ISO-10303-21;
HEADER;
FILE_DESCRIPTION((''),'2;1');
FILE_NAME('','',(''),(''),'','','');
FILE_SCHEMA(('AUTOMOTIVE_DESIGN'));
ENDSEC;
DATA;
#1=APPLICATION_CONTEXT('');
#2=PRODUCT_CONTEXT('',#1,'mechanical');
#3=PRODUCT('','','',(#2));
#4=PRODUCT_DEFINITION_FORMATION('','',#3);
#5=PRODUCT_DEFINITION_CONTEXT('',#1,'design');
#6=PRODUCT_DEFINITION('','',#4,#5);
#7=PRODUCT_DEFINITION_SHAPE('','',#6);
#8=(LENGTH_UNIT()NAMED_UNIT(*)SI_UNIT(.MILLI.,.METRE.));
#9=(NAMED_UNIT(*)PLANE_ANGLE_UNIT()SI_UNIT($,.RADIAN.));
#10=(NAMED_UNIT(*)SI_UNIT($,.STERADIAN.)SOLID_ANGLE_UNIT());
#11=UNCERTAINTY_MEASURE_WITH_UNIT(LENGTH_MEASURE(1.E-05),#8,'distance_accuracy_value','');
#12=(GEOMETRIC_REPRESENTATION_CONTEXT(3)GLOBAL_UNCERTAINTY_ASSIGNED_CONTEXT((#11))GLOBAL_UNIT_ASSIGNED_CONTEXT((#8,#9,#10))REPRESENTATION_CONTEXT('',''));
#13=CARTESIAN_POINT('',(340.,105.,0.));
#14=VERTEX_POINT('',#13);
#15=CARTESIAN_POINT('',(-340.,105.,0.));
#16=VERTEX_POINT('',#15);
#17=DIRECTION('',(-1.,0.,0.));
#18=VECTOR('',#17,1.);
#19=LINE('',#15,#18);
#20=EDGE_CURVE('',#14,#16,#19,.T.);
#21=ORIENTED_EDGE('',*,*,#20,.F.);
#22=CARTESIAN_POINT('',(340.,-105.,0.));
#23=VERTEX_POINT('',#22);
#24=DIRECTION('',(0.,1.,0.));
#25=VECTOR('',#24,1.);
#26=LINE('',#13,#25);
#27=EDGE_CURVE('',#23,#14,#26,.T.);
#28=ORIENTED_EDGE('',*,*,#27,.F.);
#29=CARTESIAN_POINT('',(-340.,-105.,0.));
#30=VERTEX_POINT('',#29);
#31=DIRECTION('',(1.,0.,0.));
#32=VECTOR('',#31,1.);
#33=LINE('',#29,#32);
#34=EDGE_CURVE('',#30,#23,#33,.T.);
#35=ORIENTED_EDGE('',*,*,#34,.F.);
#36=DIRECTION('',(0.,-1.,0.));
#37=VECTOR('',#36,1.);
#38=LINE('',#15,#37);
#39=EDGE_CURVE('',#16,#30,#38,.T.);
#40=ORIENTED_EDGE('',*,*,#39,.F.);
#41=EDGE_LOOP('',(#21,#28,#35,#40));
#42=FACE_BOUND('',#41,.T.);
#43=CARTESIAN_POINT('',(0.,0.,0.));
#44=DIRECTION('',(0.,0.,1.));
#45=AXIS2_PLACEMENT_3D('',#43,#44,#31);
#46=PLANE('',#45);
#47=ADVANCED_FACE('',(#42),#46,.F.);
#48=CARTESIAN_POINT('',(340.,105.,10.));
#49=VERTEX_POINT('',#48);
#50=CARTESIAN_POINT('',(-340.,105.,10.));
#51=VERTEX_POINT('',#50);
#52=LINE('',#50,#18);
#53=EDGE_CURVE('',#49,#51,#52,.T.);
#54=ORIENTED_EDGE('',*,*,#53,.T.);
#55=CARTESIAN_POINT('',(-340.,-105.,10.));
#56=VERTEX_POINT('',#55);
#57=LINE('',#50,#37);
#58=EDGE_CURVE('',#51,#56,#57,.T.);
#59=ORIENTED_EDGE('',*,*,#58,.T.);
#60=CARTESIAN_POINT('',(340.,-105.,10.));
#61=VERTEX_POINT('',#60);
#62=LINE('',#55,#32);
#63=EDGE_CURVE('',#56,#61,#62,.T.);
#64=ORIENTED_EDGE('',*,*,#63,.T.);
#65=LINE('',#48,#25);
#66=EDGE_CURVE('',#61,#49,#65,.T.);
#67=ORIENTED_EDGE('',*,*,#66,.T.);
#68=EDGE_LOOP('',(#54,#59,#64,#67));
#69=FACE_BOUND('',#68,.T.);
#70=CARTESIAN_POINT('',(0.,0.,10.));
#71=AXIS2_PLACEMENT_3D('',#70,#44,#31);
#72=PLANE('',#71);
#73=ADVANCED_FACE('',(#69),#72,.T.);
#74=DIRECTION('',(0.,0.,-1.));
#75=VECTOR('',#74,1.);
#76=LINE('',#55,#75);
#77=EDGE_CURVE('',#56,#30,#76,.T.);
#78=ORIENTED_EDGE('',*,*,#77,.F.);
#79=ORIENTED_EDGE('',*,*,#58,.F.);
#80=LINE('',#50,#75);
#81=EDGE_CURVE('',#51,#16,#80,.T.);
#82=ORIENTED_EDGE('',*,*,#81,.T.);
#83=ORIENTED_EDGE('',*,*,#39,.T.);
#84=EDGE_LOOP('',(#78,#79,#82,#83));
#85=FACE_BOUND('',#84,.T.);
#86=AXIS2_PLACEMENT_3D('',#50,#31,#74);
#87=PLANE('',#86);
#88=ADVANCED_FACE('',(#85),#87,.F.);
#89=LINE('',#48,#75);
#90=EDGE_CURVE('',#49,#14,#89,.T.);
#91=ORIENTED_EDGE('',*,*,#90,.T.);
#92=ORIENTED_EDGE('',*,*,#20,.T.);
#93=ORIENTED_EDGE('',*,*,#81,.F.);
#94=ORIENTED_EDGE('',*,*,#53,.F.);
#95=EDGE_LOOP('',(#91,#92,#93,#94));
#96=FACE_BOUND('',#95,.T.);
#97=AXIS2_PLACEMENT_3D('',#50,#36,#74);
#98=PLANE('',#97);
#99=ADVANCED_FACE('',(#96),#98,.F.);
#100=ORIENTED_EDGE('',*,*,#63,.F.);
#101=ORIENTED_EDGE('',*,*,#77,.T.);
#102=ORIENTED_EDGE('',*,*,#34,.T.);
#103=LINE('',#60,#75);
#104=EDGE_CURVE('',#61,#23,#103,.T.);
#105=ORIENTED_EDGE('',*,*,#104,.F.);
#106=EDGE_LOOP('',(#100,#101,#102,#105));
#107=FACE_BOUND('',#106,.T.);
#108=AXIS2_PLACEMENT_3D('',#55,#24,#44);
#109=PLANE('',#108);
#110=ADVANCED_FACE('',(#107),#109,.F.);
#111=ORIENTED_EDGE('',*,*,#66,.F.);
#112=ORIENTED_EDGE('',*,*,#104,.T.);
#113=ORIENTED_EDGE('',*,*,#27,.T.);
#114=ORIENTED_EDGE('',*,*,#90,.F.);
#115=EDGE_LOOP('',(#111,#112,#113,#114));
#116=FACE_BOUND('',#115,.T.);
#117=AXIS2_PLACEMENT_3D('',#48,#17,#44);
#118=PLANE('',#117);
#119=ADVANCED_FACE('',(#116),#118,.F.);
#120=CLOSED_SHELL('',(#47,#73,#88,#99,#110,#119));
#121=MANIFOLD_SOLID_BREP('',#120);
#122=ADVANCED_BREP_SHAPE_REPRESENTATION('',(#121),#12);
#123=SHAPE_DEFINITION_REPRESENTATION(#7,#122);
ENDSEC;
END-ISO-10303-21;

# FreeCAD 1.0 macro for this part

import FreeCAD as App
import Part
import Sketcher
Q = App.Units.Quantity


def add_polygon(sketch, points):
    """Adds a closed chain of lines whose ends are joined by coincident constraints."""
    first, n = sketch.GeometryCount, len(points)
    for a, b in zip(points, points[1:] + points[:1]):
        sketch.addGeometry(Part.LineSegment(App.Vector(*a, 0), App.Vector(*b, 0)), False)
    for i in range(n):
        sketch.addConstraint(Sketcher.Constraint("Coincident", first + i, 2, first + (i + 1) % n, 1))

doc = App.newDocument("Part")
body = doc.addObject("PartDesign::Body", "Body")

sketch1 = doc.addObject("Sketcher::SketchObject", "Sketch")
body.addObject(sketch1)
sketch1.AttachmentSupport = (doc.XY_Plane, [""])
sketch1.MapMode = "FlatFace"
add_polygon(sketch1, [(-340, 105), (-340, -105), (340, -105), (340, 105)])
sketch1.addConstraint([
    Sketcher.Constraint("Vertical", 0),
    Sketcher.Constraint("Horizontal", 1),
    Sketcher.Constraint("Vertical", 2),
    Sketcher.Constraint("Horizontal", 3),
    Sketcher.Constraint("Symmetric", 0, 2, 2, 2, -1, 1),
    Sketcher.Constraint("DistanceX", 1, 1, 1, 2, Q("680 mm")),
    Sketcher.Constraint("DistanceY", 0, 2, 0, 1, Q("210 mm")),
])
pad1 = doc.addObject("PartDesign::Pad", "Pad")
body.addObject(pad1)
pad1.Profile = sketch1
pad1.Length = 10

doc.recompute()
